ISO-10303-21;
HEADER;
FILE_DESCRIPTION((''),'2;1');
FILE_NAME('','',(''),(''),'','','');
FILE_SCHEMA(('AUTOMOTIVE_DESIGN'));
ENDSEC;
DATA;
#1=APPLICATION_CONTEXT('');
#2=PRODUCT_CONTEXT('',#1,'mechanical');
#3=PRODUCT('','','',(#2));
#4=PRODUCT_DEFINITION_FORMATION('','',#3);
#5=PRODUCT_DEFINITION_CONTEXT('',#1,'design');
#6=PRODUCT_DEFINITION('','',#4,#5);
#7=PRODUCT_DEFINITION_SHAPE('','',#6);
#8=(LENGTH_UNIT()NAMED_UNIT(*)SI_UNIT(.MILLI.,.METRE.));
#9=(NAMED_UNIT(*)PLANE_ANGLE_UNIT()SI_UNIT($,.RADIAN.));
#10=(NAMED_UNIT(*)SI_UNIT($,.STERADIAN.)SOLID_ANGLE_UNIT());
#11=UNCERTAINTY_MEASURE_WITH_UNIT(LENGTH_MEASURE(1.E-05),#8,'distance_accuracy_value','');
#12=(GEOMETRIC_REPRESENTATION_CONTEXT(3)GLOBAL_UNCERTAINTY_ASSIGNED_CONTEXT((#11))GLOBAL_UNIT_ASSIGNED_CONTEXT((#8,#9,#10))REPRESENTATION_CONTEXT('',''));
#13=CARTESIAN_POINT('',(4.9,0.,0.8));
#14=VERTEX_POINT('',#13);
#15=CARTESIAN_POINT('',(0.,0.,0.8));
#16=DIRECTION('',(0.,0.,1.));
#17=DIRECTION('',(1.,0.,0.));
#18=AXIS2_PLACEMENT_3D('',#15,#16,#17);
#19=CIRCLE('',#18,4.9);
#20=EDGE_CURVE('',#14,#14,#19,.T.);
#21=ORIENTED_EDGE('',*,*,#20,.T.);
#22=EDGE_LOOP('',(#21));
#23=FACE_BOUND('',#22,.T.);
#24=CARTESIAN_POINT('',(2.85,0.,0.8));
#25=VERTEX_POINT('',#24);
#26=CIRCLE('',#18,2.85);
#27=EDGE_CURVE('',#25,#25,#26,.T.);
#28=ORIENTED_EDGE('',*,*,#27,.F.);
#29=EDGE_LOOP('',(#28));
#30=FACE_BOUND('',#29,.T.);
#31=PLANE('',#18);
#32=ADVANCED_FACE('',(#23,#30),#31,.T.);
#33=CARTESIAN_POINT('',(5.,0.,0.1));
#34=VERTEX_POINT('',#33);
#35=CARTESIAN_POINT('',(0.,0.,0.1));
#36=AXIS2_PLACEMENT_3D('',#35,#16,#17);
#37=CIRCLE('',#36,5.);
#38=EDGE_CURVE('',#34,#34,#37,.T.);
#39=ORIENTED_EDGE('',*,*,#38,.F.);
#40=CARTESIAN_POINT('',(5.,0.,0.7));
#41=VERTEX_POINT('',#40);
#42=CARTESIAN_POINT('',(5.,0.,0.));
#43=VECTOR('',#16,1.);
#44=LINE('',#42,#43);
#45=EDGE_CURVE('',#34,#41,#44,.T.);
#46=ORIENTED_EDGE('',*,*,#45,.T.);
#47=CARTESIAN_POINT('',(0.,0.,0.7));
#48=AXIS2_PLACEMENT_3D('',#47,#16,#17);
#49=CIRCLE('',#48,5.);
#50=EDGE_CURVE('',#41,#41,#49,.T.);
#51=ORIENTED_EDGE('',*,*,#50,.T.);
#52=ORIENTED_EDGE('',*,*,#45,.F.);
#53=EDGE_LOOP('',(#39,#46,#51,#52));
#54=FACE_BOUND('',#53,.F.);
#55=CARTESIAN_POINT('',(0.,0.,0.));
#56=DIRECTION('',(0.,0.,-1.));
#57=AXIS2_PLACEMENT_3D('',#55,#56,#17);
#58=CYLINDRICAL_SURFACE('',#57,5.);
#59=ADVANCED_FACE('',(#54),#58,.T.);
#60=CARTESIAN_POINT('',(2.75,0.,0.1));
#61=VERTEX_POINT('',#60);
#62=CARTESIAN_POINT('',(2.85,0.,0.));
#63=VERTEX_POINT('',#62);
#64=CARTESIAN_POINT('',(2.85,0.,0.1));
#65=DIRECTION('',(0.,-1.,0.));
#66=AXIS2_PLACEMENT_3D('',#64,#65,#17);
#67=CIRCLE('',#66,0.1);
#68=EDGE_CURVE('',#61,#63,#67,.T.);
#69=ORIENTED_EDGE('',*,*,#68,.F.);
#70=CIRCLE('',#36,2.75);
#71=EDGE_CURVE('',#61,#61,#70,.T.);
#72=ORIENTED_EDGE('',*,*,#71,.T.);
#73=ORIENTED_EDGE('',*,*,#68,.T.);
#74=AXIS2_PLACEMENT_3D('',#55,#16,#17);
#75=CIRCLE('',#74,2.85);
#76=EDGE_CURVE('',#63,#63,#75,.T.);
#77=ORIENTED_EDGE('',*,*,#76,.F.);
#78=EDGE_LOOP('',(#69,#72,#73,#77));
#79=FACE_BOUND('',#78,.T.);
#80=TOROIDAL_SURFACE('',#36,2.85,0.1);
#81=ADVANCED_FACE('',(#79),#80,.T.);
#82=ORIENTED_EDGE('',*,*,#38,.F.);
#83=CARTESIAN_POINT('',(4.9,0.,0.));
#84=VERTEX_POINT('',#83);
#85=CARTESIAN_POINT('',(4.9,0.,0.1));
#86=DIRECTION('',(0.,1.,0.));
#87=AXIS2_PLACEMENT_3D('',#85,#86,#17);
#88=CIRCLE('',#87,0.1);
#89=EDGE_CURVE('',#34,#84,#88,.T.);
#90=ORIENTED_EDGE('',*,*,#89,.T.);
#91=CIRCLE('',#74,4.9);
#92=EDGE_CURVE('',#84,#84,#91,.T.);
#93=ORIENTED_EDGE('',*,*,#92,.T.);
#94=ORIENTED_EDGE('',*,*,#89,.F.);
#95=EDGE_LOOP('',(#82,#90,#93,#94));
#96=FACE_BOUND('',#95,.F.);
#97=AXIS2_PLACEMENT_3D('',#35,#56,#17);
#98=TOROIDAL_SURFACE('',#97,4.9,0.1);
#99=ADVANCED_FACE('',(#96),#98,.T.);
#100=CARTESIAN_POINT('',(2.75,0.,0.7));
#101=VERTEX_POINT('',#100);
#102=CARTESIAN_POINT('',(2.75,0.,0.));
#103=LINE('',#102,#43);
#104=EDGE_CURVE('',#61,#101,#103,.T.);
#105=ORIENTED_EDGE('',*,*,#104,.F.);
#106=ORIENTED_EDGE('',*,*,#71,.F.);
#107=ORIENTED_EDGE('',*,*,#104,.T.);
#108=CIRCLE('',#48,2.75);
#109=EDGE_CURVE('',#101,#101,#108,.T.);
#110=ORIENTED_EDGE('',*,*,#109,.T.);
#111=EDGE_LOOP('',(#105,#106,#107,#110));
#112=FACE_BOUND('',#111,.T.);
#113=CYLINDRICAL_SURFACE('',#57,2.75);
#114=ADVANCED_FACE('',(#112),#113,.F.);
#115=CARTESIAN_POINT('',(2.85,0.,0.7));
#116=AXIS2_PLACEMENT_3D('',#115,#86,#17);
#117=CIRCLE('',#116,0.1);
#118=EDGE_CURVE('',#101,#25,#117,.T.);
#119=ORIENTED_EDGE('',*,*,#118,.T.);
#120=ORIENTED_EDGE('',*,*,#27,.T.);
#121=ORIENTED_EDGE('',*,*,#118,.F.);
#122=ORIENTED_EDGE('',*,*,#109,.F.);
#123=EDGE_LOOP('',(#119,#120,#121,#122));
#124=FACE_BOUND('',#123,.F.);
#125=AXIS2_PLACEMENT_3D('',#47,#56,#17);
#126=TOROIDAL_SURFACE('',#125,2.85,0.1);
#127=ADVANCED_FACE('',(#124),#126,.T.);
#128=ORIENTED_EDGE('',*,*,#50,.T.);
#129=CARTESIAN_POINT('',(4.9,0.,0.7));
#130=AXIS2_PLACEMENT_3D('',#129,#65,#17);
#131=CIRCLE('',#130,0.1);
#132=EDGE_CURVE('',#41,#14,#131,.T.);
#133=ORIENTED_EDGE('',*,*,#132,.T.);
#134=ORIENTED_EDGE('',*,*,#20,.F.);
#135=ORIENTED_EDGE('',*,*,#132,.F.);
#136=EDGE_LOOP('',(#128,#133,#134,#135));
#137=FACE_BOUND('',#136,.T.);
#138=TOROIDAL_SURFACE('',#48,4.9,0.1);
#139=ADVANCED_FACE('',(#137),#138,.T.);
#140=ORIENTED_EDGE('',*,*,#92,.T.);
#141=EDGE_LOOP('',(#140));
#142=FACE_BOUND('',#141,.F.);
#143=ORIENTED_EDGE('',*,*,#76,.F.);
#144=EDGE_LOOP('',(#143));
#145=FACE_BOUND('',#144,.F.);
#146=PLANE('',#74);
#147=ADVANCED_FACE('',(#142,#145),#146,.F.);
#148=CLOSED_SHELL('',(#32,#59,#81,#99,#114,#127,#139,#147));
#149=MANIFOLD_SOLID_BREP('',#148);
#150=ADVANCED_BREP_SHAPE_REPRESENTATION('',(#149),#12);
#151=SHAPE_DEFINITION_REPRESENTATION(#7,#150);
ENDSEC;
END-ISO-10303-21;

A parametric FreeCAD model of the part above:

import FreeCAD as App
import Part
import Sketcher
from FreeCAD import Vector
Q = App.Units.Quantity


def edges_at(feature, points):
    """Names of the edges that pass closest to the given points."""
    edges = feature.Shape.Edges
    near = lambda p: min(range(len(edges)), key=lambda i: edges[i].distToShape(Part.Vertex(*p))[0])
    return sorted({f"Edge{near(p) + 1}" for p in points})

doc = App.newDocument("Part")
body = doc.addObject("PartDesign::Body", "Body")

# Sketch on XY plane
sketch1 = body.newObject("Sketcher::SketchObject", "Sketch")
sketch1.AttachmentSupport = (doc.getObject("XY_Plane"), [""])
sketch1.MapMode = "FlatFace"
sketch1.addGeometry(Part.Circle(Vector(0, 0, 0), Vector(0, 0, 1), 5), False)
sketch1.addGeometry(Part.Circle(Vector(0, 0, 0), Vector(0, 0, 1), 2.8), False)
sketch1.addConstraint(Sketcher.Constraint("Coincident", 0, 3, -1, 1))
sketch1.addConstraint(Sketcher.Constraint("Coincident", 1, 3, -1, 1))
sketch1.addConstraint(Sketcher.Constraint("Diameter", 0, Q("10 mm")))
sketch1.addConstraint(Sketcher.Constraint("Diameter", 1, Q("5.5 mm")))
pad1 = body.newObject("PartDesign::Pad", "Pad")
pad1.Profile = sketch1
pad1.Length = 0.8
doc.recompute()

fillet = body.newObject("PartDesign::Fillet", "Fillet")
fillet.Base = (pad1, edges_at(pad1, [
    (-5, 0, 0.8),
    (-5, 0, 0),
    (-2.75, 0, 0.8),
    (-2.75, 0, 0),
]))
fillet.Radius = 0.1

doc.recompute()
